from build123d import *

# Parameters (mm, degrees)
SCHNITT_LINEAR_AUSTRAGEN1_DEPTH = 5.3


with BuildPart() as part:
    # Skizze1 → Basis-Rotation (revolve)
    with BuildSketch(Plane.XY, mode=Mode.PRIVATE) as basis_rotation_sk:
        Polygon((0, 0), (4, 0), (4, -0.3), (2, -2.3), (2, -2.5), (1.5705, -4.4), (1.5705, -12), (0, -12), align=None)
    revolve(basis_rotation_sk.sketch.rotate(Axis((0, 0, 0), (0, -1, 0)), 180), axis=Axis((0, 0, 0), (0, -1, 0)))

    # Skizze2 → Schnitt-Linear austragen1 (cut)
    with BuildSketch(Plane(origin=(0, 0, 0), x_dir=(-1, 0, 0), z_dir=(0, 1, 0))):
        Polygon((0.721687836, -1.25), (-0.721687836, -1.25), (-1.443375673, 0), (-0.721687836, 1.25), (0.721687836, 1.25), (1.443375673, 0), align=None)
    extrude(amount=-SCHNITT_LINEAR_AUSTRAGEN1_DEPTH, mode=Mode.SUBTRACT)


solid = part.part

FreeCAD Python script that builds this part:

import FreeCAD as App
import Part
import Sketcher
from FreeCAD import Vector
Q = App.Units.Quantity


def add_polygon(sketch, points):
    """Adds a closed chain of lines whose ends are joined by coincident constraints."""
    first, n = sketch.GeometryCount, len(points)
    for a, b in zip(points, points[1:] + points[:1]):
        sketch.addGeometry(Part.LineSegment(App.Vector(*a, 0), App.Vector(*b, 0)), False)
    for i in range(n):
        sketch.addConstraint(Sketcher.Constraint("Coincident", first + i, 2, first + (i + 1) % n, 1))

doc = App.newDocument("Part")
body = doc.addObject("PartDesign::Body", "Body")

sketch1 = doc.addObject("Sketcher::SketchObject", "Sketch")
body.addObject(sketch1)
sketch1.AttachmentSupport = (doc.XY_Plane, [""])
sketch1.MapMode = "FlatFace"
add_polygon(sketch1, [(4, 0), (0, 0), (0, -12), (1.5705, -12), (1.5705, -4.4), (2, -2.5), (2, -2.3), (4, -0.3)])
sketch1.addConstraint(Sketcher.Constraint("Horizontal", 0))
sketch1.addConstraint(Sketcher.Constraint("Vertical", 1))
sketch1.addConstraint(Sketcher.Constraint("Horizontal", 2))
sketch1.addConstraint(Sketcher.Constraint("Vertical", 3))
sketch1.addConstraint(Sketcher.Constraint("Vertical", 5))
sketch1.addConstraint(Sketcher.Constraint("Vertical", 7))
sketch1.addConstraint(Sketcher.Constraint("Coincident", 0, 2, -1, 1))
sketch1.addConstraint(Sketcher.Constraint("DistanceX", 0, 2, 0, 1, Q("4 mm")))
sketch1.addConstraint(Sketcher.Constraint("DistanceY", 1, 2, 1, 1, Q("12 mm")))
sketch1.addConstraint(Sketcher.Constraint("Angle", 6, Q("45 deg")))
sketch1.addConstraint(Sketcher.Constraint("DistanceY", 3, 1, 3, 2, Q("7.6 mm")))
sketch1.addConstraint(Sketcher.Constraint("DistanceY", 5, 1, 5, 2, Q("0.2 mm")))
sketch1.addConstraint(Sketcher.Constraint("DistanceY", 7, 1, 7, 2, Q("0.3 mm")))
sketch1.addConstraint(Sketcher.Constraint("DistanceX", -1, 1, 4, 2, Q("2 mm")))
sketch1.addConstraint(Sketcher.Constraint("DistanceX", 2, 1, 2, 2, Q("1.5705 mm")))
revolution = doc.addObject("PartDesign::Revolution", "Revolution")
body.addObject(revolution)
revolution.Profile = sketch1
revolution.ReferenceAxis = (sketch1, ["V_Axis"])
revolution.Angle = 360

sketch2 = doc.addObject("Sketcher::SketchObject", "Sketch001")
body.addObject(sketch2)
sketch2.AttachmentSupport = (doc.XZ_Plane, [""])
sketch2.MapMode = "FlatFace"
add_polygon(sketch2, [(0.721688, -1.25), (-0.721688, -1.25), (-1.443376, 0), (-0.721688, 1.25), (0.721688, 1.25), (1.443376, 0)])
sketch2.addConstraint(Sketcher.Constraint("Horizontal", 0))
sketch2.addConstraint(Sketcher.Constraint("Horizontal", 3))
sketch2.addConstraint(Sketcher.Constraint("Symmetric", 0, 2, 3, 2, -1, 1))
sketch2.addConstraint(Sketcher.Constraint("Symmetric", 1, 2, 4, 2, -1, 1))
sketch2.addConstraint(Sketcher.Constraint("PointOnObject", 1, 2, -1))
sketch2.addConstraint(Sketcher.Constraint("Parallel", 2, 5))
sketch2.addConstraint(Sketcher.Constraint("Vertical", 0, 2, 2, 2))
sketch2.addConstraint(Sketcher.Constraint("Angle", 1, Q("120 deg")))
sketch2.addConstraint(Sketcher.Constraint("DistanceY", 0, 2, 2, 2, Q("2.5 mm")))
sketch2.addConstraint(Sketcher.Constraint("DistanceX", 0, 2, 0, 1, Q("1.443376 mm")))
pocket1 = doc.addObject("PartDesign::Pocket", "Pocket")
body.addObject(pocket1)
pocket1.Profile = sketch2
pocket1.Length = 5.3
pocket1.Reversed = True

doc.recompute()
